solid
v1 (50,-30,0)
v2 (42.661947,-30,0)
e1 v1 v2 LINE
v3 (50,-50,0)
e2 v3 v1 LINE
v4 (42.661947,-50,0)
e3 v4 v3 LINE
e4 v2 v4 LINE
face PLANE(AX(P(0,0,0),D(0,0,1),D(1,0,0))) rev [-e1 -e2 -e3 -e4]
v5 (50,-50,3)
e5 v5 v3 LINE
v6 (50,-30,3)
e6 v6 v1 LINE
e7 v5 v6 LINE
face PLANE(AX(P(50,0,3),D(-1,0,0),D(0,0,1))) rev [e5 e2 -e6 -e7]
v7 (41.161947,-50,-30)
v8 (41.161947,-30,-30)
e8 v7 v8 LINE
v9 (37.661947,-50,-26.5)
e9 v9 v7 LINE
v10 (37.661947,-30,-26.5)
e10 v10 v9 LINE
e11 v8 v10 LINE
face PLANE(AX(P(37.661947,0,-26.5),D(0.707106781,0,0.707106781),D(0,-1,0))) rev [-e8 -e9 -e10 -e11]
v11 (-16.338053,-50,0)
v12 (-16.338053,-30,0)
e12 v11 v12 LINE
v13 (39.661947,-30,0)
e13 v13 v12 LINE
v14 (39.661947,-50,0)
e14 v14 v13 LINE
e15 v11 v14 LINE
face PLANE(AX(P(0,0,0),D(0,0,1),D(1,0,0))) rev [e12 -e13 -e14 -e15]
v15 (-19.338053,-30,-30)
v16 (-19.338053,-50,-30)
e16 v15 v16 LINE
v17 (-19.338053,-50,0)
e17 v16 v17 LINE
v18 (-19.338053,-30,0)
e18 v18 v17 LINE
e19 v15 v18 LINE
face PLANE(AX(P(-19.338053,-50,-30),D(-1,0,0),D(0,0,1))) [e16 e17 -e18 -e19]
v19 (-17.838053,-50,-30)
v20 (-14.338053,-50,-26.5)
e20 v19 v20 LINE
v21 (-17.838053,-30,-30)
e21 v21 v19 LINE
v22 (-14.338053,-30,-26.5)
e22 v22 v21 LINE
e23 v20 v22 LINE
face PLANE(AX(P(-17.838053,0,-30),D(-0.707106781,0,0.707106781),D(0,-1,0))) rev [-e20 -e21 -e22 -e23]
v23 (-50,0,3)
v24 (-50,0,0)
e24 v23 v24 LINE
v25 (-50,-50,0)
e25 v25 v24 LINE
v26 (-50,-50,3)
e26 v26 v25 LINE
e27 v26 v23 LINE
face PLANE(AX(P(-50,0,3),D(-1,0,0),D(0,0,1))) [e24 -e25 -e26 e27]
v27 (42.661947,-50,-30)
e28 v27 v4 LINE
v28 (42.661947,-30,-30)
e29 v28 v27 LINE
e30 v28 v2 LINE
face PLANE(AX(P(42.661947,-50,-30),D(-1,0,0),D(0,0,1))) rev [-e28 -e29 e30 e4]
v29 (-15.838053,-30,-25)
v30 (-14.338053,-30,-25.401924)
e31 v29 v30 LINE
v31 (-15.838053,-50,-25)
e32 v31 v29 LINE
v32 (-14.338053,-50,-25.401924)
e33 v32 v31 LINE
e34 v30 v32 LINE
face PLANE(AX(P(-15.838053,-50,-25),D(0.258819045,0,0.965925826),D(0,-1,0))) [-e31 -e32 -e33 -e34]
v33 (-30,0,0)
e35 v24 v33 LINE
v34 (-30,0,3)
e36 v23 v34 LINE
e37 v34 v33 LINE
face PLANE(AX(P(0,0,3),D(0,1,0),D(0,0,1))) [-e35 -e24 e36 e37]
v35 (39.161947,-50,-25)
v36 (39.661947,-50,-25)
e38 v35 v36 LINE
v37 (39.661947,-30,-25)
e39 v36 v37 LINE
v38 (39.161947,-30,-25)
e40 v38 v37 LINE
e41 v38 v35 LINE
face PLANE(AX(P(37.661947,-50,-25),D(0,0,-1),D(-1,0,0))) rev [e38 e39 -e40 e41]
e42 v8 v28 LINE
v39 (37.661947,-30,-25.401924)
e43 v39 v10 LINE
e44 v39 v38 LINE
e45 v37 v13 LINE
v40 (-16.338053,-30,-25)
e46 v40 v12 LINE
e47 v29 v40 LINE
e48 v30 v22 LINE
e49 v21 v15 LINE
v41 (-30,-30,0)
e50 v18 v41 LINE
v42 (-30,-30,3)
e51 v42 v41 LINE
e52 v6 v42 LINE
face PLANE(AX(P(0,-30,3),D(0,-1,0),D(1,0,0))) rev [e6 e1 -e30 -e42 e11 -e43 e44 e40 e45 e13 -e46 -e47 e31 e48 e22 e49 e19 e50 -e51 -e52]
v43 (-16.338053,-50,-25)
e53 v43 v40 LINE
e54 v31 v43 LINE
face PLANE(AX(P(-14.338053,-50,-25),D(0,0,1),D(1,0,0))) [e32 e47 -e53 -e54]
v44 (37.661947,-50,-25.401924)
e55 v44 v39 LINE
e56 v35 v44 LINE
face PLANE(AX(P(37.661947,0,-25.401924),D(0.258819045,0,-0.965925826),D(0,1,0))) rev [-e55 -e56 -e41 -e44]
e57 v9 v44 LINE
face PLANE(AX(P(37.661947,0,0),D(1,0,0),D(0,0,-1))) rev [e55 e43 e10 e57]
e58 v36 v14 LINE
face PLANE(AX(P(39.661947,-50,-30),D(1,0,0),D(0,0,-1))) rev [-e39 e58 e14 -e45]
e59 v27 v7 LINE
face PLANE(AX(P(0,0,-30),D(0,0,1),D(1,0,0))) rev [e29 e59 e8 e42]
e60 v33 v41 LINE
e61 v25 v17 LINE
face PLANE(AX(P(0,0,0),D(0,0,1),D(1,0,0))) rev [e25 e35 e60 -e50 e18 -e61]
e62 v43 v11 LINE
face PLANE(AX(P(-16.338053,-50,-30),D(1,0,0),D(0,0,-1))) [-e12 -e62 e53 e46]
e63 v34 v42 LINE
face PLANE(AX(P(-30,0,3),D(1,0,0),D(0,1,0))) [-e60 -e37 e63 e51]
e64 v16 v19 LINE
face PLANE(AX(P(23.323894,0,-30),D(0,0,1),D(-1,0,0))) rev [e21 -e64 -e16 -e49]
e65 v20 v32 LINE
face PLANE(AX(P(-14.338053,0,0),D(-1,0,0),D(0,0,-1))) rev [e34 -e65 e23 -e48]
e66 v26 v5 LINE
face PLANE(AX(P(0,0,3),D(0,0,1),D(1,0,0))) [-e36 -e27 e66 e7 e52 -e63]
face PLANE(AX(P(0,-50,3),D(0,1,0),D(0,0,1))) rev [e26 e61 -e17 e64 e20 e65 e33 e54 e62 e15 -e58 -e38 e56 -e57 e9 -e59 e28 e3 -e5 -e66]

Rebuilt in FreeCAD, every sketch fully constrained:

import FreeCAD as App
import Part
import Sketcher

V = App.Vector
Q = App.Units.Quantity


def edges_at(feature, points):
    """Names of the edges that pass closest to the given points."""
    edges = feature.Shape.Edges
    near = lambda p: min(range(len(edges)), key=lambda i: edges[i].distToShape(Part.Vertex(*p))[0])
    return sorted({f"Edge{near(p) + 1}" for p in points})


def add_polygon(sketch, points):
    """Adds a closed chain of lines whose ends are joined by coincident constraints."""
    first, n = sketch.GeometryCount, len(points)
    for a, b in zip(points, points[1:] + points[:1]):
        sketch.addGeometry(Part.LineSegment(App.Vector(*a, 0), App.Vector(*b, 0)), False)
    for i in range(n):
        sketch.addConstraint(Sketcher.Constraint("Coincident", first + i, 2, first + (i + 1) % n, 1))

doc = App.newDocument("Part")
body = doc.addObject("PartDesign::Body", "Body")

sketch1 = body.newObject("Sketcher::SketchObject", "Sketch")
sketch1.AttachmentSupport = (doc.getObject("XY_Plane"), [""])
sketch1.MapMode = "FlatFace"
add_polygon(sketch1, [(-50, 0), (-50, -50), (50, -50), (50, -30), (-30, -30), (-30, 0)])
sketch1.addConstraint(Sketcher.Constraint("Vertical", 0))
sketch1.addConstraint(Sketcher.Constraint("Horizontal", 1))
sketch1.addConstraint(Sketcher.Constraint("Vertical", 2))
sketch1.addConstraint(Sketcher.Constraint("Horizontal", 3))
sketch1.addConstraint(Sketcher.Constraint("Vertical", 4))
sketch1.addConstraint(Sketcher.Constraint("Horizontal", 5))
sketch1.addConstraint(Sketcher.Constraint("PointOnObject", 4, 2, -1))
sketch1.addConstraint(Sketcher.Constraint("Equal", 5, 2))
sketch1.addConstraint(Sketcher.Constraint("DistanceX", 1, 1, 1, 2, Q("100 mm")))
sketch1.addConstraint(Sketcher.Constraint("DistanceX", 3, 2, 3, 1, Q("80 mm")))
sketch1.addConstraint(Sketcher.Constraint("DistanceY", 0, 2, 0, 1, Q("50 mm")))
sketch1.addConstraint(Sketcher.Constraint("DistanceX", 0, 2, -1, 1, Q("50 mm")))
pad1 = body.newObject("PartDesign::Pad", "Pad")
pad1.Profile = sketch1
pad1.Length = 3

sketch2 = body.newObject("Sketcher::SketchObject", "Sketch001")
sketch2.AttachmentSupport = (doc.getObject("XY_Plane"), [""])
sketch2.MapMode = "FlatFace"
add_polygon(sketch2, [(42.7, -30), (42.7, -50), (39.7, -50), (39.7, -30)])
sketch2.addConstraint(Sketcher.Constraint("Vertical", 0))
sketch2.addConstraint(Sketcher.Constraint("Horizontal", 1))
sketch2.addConstraint(Sketcher.Constraint("Vertical", 2))
sketch2.addConstraint(Sketcher.Constraint("Horizontal", 3))
sketch2.addConstraint(Sketcher.Constraint("DistanceX", 1, 2, 1, 1, Q("3 mm")))
sketch2.addConstraint(Sketcher.Constraint("DistanceY", 0, 2, 0, 1, Q("20 mm")))
sketch2.addConstraint(Sketcher.Constraint("DistanceY", 0, 2, -1, 1, Q("50 mm")))
sketch2.addConstraint(Sketcher.Constraint("DistanceX", -1, 1, 0, 2, Q("42.661947 mm")))
pad2 = body.newObject("PartDesign::Pad", "Pad001")
pad2.Profile = sketch2
pad2.Length = 30
pad2.Reversed = True

sketch3 = body.newObject("Sketcher::SketchObject", "Sketch002")
sketch3.AttachmentSupport = (doc.getObject("YZ_Plane"), [""])
sketch3.MapMode = "FlatFace"
sketch3.AttachmentOffset = App.Placement(V(0, 0, 39.661947), App.Rotation())
add_polygon(sketch3, [(-30, -30), (-50, -30), (-50, -25), (-30, -25)])
sketch3.addConstraint(Sketcher.Constraint("Horizontal", 0))
sketch3.addConstraint(Sketcher.Constraint("Vertical", 1))
sketch3.addConstraint(Sketcher.Constraint("Horizontal", 2))
sketch3.addConstraint(Sketcher.Constraint("Vertical", 3))
sketch3.addConstraint(Sketcher.Constraint("DistanceX", 0, 2, 0, 1, Q("20 mm")))
sketch3.addConstraint(Sketcher.Constraint("DistanceY", 1, 1, 1, 2, Q("5 mm")))
sketch3.addConstraint(Sketcher.Constraint("DistanceX", 0, 2, -1, 1, Q("50 mm")))
sketch3.addConstraint(Sketcher.Constraint("DistanceY", 0, 2, -1, 1, Q("30 mm")))
pad3 = body.newObject("PartDesign::Pad", "Pad002")
pad3.Profile = sketch3
pad3.Length = 2
pad3.Reversed = True
doc.recompute()

chamfer = body.newObject("PartDesign::Chamfer", "Chamfer")
chamfer.Base = (pad3, edges_at(pad3, [(37.662, -40, -30)]))
chamfer.Size = 3.5
doc.recompute()

chamfer2 = body.newObject("PartDesign::Chamfer", "Chamfer001")
chamfer2.Base = (chamfer, edges_at(chamfer, [(37.662, -40, -25)]))
chamfer2.ChamferType = "Two distances"
chamfer2.Size = 1.5
chamfer2.Size2 = 0.401924
chamfer2.FlipDirection = True
doc.recompute()

datumplane = body.newObject("PartDesign::Plane", "DatumPlane")
datumplane.AttachmentSupport = (doc.getObject("YZ_Plane"), [""])
datumplane.MapMode = "FlatFace"
datumplane.AttachmentOffset = App.Placement(V(0, 0, 11.661947), App.Rotation())
mirrored = body.newObject("PartDesign::Mirrored", "Mirrored")
mirrored.Originals = [pad2, pad3]
mirrored.MirrorPlane = (datumplane, [""])
body.Tip = mirrored
doc.recompute()

chamfer3 = body.newObject("PartDesign::Chamfer", "Chamfer002")
chamfer3.Base = (mirrored, edges_at(mirrored, [(-14.338, -40, -30)]))
chamfer3.Size = 3.5
doc.recompute()

chamfer4 = body.newObject("PartDesign::Chamfer", "Chamfer003")
chamfer4.Base = (chamfer3, edges_at(chamfer3, [(-14.338, -40, -25)]))
chamfer4.ChamferType = "Two distances"
chamfer4.Size = 0.401924
chamfer4.Size2 = 1.5

doc.recompute()
